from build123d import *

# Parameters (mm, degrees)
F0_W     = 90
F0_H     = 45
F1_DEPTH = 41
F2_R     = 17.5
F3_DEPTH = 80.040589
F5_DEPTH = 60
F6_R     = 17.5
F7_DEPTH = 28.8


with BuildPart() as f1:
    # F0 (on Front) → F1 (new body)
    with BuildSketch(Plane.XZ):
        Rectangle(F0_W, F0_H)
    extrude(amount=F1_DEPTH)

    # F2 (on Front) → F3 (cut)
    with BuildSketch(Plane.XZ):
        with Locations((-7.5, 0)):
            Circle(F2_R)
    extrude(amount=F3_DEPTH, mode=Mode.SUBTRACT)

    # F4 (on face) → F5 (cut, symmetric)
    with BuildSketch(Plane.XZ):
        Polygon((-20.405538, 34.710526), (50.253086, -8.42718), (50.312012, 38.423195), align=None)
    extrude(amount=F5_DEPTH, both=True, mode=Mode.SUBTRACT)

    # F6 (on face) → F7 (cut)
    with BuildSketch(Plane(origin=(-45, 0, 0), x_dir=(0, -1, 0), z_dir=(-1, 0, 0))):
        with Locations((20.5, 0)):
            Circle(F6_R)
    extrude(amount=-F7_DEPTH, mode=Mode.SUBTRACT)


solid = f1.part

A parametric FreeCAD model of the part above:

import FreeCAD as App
import Part
import Sketcher

V = App.Vector


def add_polygon(sketch, points):
    """Adds a closed chain of lines whose ends are joined by coincident constraints."""
    first, n = sketch.GeometryCount, len(points)
    for a, b in zip(points, points[1:] + points[:1]):
        sketch.addGeometry(Part.LineSegment(App.Vector(*a, 0), App.Vector(*b, 0)), False)
    for i in range(n):
        sketch.addConstraint(Sketcher.Constraint("Coincident", first + i, 2, first + (i + 1) % n, 1))

doc = App.newDocument("Part")
params = doc.addObject("Spreadsheet::Sheet", "Params")
for row, (alias, value) in enumerate([
    ("sketch1_width", "90 mm"),
    ("sketch1_height", "45 mm"),
    ("pad1_length", "41 mm"),
    ("sketch2_diameter", "35 mm"),
    ("pocket1_length", "80.040589 mm"),
    ("pocket2_length", "120 mm"),
    ("sketch4_diameter", "35 mm"),
    ("pocket3_length", "28.8 mm"),
], start=1):
    params.set(f"A{row}", alias)
    params.set(f"B{row}", "=" + value)
    params.setAlias(f"B{row}", alias)

body = doc.addObject("PartDesign::Body", "Body")

sketch1 = body.newObject("Sketcher::SketchObject", "Sketch")
sketch1.AttachmentSupport = (doc.getObject("XZ_Plane"), [""])
sketch1.MapMode = "FlatFace"
add_polygon(sketch1, [(-45, 22), (-45, -22), (45, -22), (45, 22)])
sketch1.addConstraint(Sketcher.Constraint("Vertical", 0))
sketch1.addConstraint(Sketcher.Constraint("Horizontal", 1))
sketch1.addConstraint(Sketcher.Constraint("Vertical", 2))
sketch1.addConstraint(Sketcher.Constraint("Horizontal", 3))
sketch1.addConstraint(Sketcher.Constraint("Symmetric", 0, 2, 2, 2, -1, 1))
sketch1.addConstraint(Sketcher.Constraint("DistanceX", 1, 1, 1, 2, 90.0))
sketch1.addConstraint(Sketcher.Constraint("DistanceY", 0, 2, 0, 1, 45.0))
sketch1.setExpression("Constraints[9]", "Params.sketch1_width")
sketch1.setExpression("Constraints[10]", "Params.sketch1_height")
pad1 = body.newObject("PartDesign::Pad", "Pad")
pad1.Profile = sketch1
pad1.setExpression("Length", "Params.pad1_length")

sketch2 = body.newObject("Sketcher::SketchObject", "Sketch001")
sketch2.AttachmentSupport = (doc.getObject("XZ_Plane"), [""])
sketch2.MapMode = "FlatFace"
sketch2.addGeometry(Part.Circle(V(-8, 0, 0), V(0, 0, 1), 18), False)
sketch2.addConstraint(Sketcher.Constraint("PointOnObject", 0, 3, -1))
sketch2.addConstraint(Sketcher.Constraint("Diameter", 0, 35.0))
sketch2.addConstraint(Sketcher.Constraint("DistanceX", 0, 3, -1, 1, 7.5))
sketch2.setExpression("Constraints[1]", "Params.sketch2_diameter")
pocket1 = body.newObject("PartDesign::Pocket", "Pocket")
pocket1.Profile = sketch2
pocket1.setExpression("Length", "Params.pocket1_length")
pocket1.Reversed = True

sketch3 = body.newObject("Sketcher::SketchObject", "Sketch002")
sketch3.AttachmentSupport = (doc.getObject("XZ_Plane"), [""])
sketch3.MapMode = "FlatFace"
add_polygon(sketch3, [(-20, 35), (50, -8), (50, 38)])
sketch3.addConstraint(Sketcher.Constraint("Distance", 2, 70.81494))
sketch3.addConstraint(Sketcher.Constraint("DistanceY", 0, 2, -1, 1, 8.42718))
sketch3.addConstraint(Sketcher.Constraint("DistanceX", 2, 2, -1, 1, 20.405538))
sketch3.addConstraint(Sketcher.Constraint("DistanceX", 2, 2, 1, 2, 70.71755))
sketch3.addConstraint(Sketcher.Constraint("Distance", 0, 82.785885))
sketch3.addConstraint(Sketcher.Constraint("Distance", 1, 46.850412))
pocket2 = body.newObject("PartDesign::Pocket", "Pocket001")
pocket2.Profile = sketch3
pocket2.setExpression("Length", "Params.pocket2_length")
pocket2.Midplane = True

sketch4 = body.newObject("Sketcher::SketchObject", "Sketch003")
sketch4.AttachmentSupport = (doc.getObject("YZ_Plane"), [""])
sketch4.MapMode = "FlatFace"
sketch4.AttachmentOffset = App.Placement(V(0, 0, -45), App.Rotation())
sketch4.addGeometry(Part.Circle(V(-20, 0, 0), V(0, 0, 1), 18), False)
sketch4.addConstraint(Sketcher.Constraint("PointOnObject", 0, 3, -1))
sketch4.addConstraint(Sketcher.Constraint("Diameter", 0, 35.0))
sketch4.addConstraint(Sketcher.Constraint("DistanceX", 0, 3, -1, 1, 20.5))
sketch4.setExpression("Constraints[1]", "Params.sketch4_diameter")
pocket3 = body.newObject("PartDesign::Pocket", "Pocket002")
pocket3.Profile = sketch4
pocket3.setExpression("Length", "Params.pocket3_length")
pocket3.Reversed = True

doc.recompute()
